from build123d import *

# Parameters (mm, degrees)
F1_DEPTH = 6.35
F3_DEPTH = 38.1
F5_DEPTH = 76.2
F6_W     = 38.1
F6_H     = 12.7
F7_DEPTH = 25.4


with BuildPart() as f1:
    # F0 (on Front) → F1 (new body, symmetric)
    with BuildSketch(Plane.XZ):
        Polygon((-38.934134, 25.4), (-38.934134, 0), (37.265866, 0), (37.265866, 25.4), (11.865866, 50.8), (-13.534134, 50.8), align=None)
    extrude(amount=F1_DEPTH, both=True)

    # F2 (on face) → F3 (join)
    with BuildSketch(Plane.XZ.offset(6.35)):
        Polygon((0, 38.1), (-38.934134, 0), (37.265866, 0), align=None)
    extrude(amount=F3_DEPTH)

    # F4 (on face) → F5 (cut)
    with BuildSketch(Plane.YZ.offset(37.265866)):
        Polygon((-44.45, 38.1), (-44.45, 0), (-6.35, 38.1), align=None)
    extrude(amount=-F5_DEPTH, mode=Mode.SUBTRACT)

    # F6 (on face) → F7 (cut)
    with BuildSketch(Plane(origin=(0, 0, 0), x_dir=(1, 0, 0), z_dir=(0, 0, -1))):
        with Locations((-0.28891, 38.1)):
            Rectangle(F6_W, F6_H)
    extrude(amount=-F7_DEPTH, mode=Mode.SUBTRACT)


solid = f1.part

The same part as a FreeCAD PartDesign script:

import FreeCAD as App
import Part
import Sketcher

V = App.Vector
Q = App.Units.Quantity

doc = App.newDocument("Part")
params = doc.addObject("Spreadsheet::Sheet", "Params")
for row, (alias, value) in enumerate([
    ("sketch1_width", "3 in"),
    ("sketch1_width2", "1 in"),
    ("pad1_length", "0.5 in"),
    ("sketch2_width", "3 in"),
    ("pad2_length", "1.5 in"),
    ("sketch3_width", "1.5 in"),
    ("pocket1_length", "3 in"),
    ("sketch4_width", "1.5 in"),
    ("sketch4_height", "0.5 in"),
    ("pocket2_length", "1 in"),
], start=1):
    params.set(f"A{row}", alias)
    params.set(f"B{row}", "=" + value)
    params.setAlias(f"B{row}", alias)

body = doc.addObject("PartDesign::Body", "Body")

sketch1 = body.newObject("Sketcher::SketchObject", "Sketch")
sketch1.AttachmentSupport = (doc.getObject("XZ_Plane"), [""])
sketch1.MapMode = "FlatFace"
sketch1.addGeometry([
    Part.LineSegment(V(-38.934134, 25.4, 0), V(-38.934134, 0, 0)),
    Part.LineSegment(V(-38.934134, 0, 0), V(37.265866, 0, 0)),
    Part.LineSegment(V(37.265866, 0, 0), V(37.265866, 25.4, 0)),
    Part.LineSegment(V(37.265866, 25.4, 0), V(11.865866, 50.8, 0)),
    Part.LineSegment(V(11.865866, 50.8, 0), V(-13.534134, 50.8, 0)),
    Part.LineSegment(V(-13.534134, 50.8, 0), V(-38.934134, 25.4, 0)),
], False)
sketch1.addConstraint([
    Sketcher.Constraint("Coincident", 0, 2, 1, 1),
    Sketcher.Constraint("Coincident", 1, 2, 2, 1),
    Sketcher.Constraint("Coincident", 2, 2, 3, 1),
    Sketcher.Constraint("Coincident", 3, 2, 4, 1),
    Sketcher.Constraint("Coincident", 4, 2, 5, 1),
    Sketcher.Constraint("Coincident", 5, 2, 0, 1),
    Sketcher.Constraint("Vertical", 0),
    Sketcher.Constraint("Horizontal", 1),
    Sketcher.Constraint("Vertical", 2),
    Sketcher.Constraint("Horizontal", 4),
    Sketcher.Constraint("PointOnObject", 0, 2, -1),
    Sketcher.Constraint("Perpendicular", 3, 5),
    Sketcher.Constraint("Horizontal", 2, 2, 5, 2),
    Sketcher.Constraint("Equal", 4, 0),
    Sketcher.Constraint("Equal", 3, 5),
    Sketcher.Constraint("DistanceX", 1, 1, 1, 2, Q("3 in")),
    Sketcher.Constraint("DistanceX", 4, 2, 4, 1, Q("1 in")),
    Sketcher.Constraint("DistanceX", 0, 2, -1, 1, Q("38.934134 mm")),
])
sketch1.setExpression("Constraints[15]", "Params.sketch1_width")
sketch1.setExpression("Constraints[16]", "Params.sketch1_width2")
pad1 = body.newObject("PartDesign::Pad", "Pad")
pad1.Profile = sketch1
pad1.setExpression("Length", "Params.pad1_length")
pad1.Midplane = True

sketch2 = body.newObject("Sketcher::SketchObject", "Sketch001")
sketch2.AttachmentSupport = (doc.getObject("XZ_Plane"), [""])
sketch2.MapMode = "FlatFace"
sketch2.AttachmentOffset = App.Placement(V(0, 0, 0.25 * 25.4), App.Rotation())
sketch2.addGeometry([
    Part.LineSegment(V(0, 38.1, 0), V(-38.934134, 0, 0)),
    Part.LineSegment(V(-38.934134, 0, 0), V(37.265866, 0, 0)),
    Part.LineSegment(V(37.265866, 0, 0), V(0, 38.1, 0)),
], False)
sketch2.addConstraint([
    Sketcher.Constraint("Coincident", 0, 2, 1, 1),
    Sketcher.Constraint("Coincident", 1, 2, 2, 1),
    Sketcher.Constraint("Coincident", 2, 2, 0, 1),
    Sketcher.Constraint("Horizontal", 1),
    Sketcher.Constraint("PointOnObject", 0, 2, -1),
    Sketcher.Constraint("PointOnObject", 2, 2, -2),
    Sketcher.Constraint("DistanceX", 1, 1, 1, 2, Q("3 in")),
    Sketcher.Constraint("DistanceY", -1, 1, 2, 2, Q("1.5 in")),
    Sketcher.Constraint("Distance", 0, Q("54.474552 mm")),
])
sketch2.setExpression("Constraints[6]", "Params.sketch2_width")
pad2 = body.newObject("PartDesign::Pad", "Pad001")
pad2.Profile = sketch2
pad2.setExpression("Length", "Params.pad2_length")

sketch3 = body.newObject("Sketcher::SketchObject", "Sketch002")
sketch3.AttachmentSupport = (doc.getObject("YZ_Plane"), [""])
sketch3.MapMode = "FlatFace"
sketch3.AttachmentOffset = App.Placement(V(0, 0, 37.265866), App.Rotation())
sketch3.addGeometry([
    Part.LineSegment(V(-44.45, 38.1, 0), V(-44.45, 0, 0)),
    Part.LineSegment(V(-44.45, 0, 0), V(-6.35, 38.1, 0)),
    Part.LineSegment(V(-6.35, 38.1, 0), V(-44.45, 38.1, 0)),
], False)
sketch3.addConstraint([
    Sketcher.Constraint("Coincident", 0, 2, 1, 1),
    Sketcher.Constraint("Coincident", 1, 2, 2, 1),
    Sketcher.Constraint("Coincident", 2, 2, 0, 1),
    Sketcher.Constraint("Vertical", 0),
    Sketcher.Constraint("Horizontal", 2),
    Sketcher.Constraint("PointOnObject", 0, 2, -1),
    Sketcher.Constraint("Equal", 2, 0),
    Sketcher.Constraint("DistanceX", 2, 2, 2, 1, Q("1.5 in")),
    Sketcher.Constraint("DistanceX", 0, 2, -1, 1, Q("1.75 in")),
])
sketch3.setExpression("Constraints[7]", "Params.sketch3_width")
pocket1 = body.newObject("PartDesign::Pocket", "Pocket")
pocket1.Profile = sketch3
pocket1.setExpression("Length", "Params.pocket1_length")

sketch4 = body.newObject("Sketcher::SketchObject", "Sketch003")
sketch4.AttachmentSupport = (doc.getObject("XY_Plane"), [""])
sketch4.MapMode = "FlatFace"
sketch4.addGeometry([
    Part.LineSegment(V(-19.33891, -44.45, 0), V(-19.33891, -31.75, 0)),
    Part.LineSegment(V(-19.33891, -31.75, 0), V(18.76109, -31.75, 0)),
    Part.LineSegment(V(18.76109, -31.75, 0), V(18.76109, -44.45, 0)),
    Part.LineSegment(V(18.76109, -44.45, 0), V(-19.33891, -44.45, 0)),
], False)
sketch4.addConstraint([
    Sketcher.Constraint("Coincident", 0, 2, 1, 1),
    Sketcher.Constraint("Coincident", 1, 2, 2, 1),
    Sketcher.Constraint("Coincident", 2, 2, 3, 1),
    Sketcher.Constraint("Coincident", 3, 2, 0, 1),
    Sketcher.Constraint("Vertical", 0),
    Sketcher.Constraint("Horizontal", 1),
    Sketcher.Constraint("Vertical", 2),
    Sketcher.Constraint("Horizontal", 3),
    Sketcher.Constraint("DistanceX", 1, 1, 1, 2, Q("1.5 in")),
    Sketcher.Constraint("DistanceY", 0, 1, 0, 2, Q("0.5 in")),
    Sketcher.Constraint("DistanceY", 0, 2, -1, 1, Q("1.25 in")),
    Sketcher.Constraint("DistanceX", 0, 2, -1, 1, Q("19.33891 mm")),
])
sketch4.setExpression("Constraints[8]", "Params.sketch4_width")
sketch4.setExpression("Constraints[9]", "Params.sketch4_height")
pocket2 = body.newObject("PartDesign::Pocket", "Pocket001")
pocket2.Profile = sketch4
pocket2.setExpression("Length", "Params.pocket2_length")
pocket2.Reversed = True

doc.recompute()
